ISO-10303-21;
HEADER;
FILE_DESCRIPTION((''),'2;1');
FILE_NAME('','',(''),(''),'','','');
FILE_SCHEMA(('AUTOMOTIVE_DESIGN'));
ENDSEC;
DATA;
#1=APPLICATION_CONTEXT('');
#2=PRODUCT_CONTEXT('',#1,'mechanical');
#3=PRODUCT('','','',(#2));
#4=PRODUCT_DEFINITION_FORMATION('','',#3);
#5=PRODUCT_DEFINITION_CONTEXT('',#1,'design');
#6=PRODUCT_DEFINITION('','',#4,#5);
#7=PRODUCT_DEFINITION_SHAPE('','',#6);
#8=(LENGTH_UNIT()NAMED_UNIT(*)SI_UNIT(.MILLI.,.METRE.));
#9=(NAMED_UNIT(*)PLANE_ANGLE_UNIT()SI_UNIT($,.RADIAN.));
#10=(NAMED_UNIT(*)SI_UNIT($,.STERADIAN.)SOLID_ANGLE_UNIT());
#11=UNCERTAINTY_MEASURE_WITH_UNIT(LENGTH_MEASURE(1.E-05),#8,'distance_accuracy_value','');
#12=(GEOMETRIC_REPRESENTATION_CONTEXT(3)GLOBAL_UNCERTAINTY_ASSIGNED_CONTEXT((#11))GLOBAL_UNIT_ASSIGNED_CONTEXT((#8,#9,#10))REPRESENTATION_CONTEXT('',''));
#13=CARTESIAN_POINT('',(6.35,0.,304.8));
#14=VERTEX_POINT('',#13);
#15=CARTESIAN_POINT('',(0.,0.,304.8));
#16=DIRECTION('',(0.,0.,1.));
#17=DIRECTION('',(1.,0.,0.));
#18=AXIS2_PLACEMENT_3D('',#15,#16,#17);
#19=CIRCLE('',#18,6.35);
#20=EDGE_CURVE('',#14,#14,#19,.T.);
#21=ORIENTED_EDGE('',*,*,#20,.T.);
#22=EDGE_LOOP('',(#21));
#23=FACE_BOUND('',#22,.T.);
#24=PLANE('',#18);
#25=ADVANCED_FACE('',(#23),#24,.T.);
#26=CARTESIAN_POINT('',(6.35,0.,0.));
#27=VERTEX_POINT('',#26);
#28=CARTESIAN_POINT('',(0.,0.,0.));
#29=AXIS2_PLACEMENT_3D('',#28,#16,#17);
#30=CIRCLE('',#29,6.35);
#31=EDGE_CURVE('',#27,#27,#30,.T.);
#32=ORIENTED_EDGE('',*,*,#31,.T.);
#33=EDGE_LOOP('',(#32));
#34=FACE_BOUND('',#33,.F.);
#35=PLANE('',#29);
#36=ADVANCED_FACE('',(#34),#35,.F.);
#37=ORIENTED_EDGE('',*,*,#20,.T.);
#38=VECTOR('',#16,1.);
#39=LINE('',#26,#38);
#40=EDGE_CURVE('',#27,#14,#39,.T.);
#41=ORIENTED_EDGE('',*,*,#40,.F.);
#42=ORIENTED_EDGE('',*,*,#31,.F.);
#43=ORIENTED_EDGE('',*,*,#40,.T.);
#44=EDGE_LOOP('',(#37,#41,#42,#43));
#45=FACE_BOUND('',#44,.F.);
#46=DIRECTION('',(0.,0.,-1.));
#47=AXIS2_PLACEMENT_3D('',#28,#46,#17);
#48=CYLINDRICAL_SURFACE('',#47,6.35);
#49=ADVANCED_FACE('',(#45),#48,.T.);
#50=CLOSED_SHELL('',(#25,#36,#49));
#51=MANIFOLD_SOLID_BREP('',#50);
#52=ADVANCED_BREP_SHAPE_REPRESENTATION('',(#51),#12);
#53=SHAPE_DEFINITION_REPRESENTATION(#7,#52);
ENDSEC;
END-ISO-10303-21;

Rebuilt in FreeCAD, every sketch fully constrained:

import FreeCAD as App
import Part
import Sketcher
Q = App.Units.Quantity

doc = App.newDocument("Part")
params = doc.addObject("Spreadsheet::Sheet", "Params")
for row, (alias, value) in enumerate([
    ("sketch1_diameter", "0.5 in"),
    ("pad1_length", "12 in"),
], start=1):
    params.set(f"A{row}", alias)
    params.set(f"B{row}", "=" + value)
    params.setAlias(f"B{row}", alias)

body = doc.addObject("PartDesign::Body", "Body")

# Sketch on XY plane
sketch1 = doc.addObject("Sketcher::SketchObject", "Sketch")
body.addObject(sketch1)
sketch1.AttachmentSupport = (doc.XY_Plane, [""])
sketch1.MapMode = "FlatFace"
sketch1.addGeometry(Part.Circle(App.Vector(0, 0, 0), App.Vector(0, 0, 1), 6), False)
sketch1.addConstraint(Sketcher.Constraint("Coincident", 0, 3, -1, 1))
sketch1.addConstraint(Sketcher.Constraint("Diameter", 0, Q("0.5 in")))
sketch1.setExpression("Constraints[1]", "Params.sketch1_diameter")
pad1 = doc.addObject("PartDesign::Pad", "Pad")
body.addObject(pad1)
pad1.Profile = sketch1
pad1.setExpression("Length", "Params.pad1_length")

doc.recompute()
